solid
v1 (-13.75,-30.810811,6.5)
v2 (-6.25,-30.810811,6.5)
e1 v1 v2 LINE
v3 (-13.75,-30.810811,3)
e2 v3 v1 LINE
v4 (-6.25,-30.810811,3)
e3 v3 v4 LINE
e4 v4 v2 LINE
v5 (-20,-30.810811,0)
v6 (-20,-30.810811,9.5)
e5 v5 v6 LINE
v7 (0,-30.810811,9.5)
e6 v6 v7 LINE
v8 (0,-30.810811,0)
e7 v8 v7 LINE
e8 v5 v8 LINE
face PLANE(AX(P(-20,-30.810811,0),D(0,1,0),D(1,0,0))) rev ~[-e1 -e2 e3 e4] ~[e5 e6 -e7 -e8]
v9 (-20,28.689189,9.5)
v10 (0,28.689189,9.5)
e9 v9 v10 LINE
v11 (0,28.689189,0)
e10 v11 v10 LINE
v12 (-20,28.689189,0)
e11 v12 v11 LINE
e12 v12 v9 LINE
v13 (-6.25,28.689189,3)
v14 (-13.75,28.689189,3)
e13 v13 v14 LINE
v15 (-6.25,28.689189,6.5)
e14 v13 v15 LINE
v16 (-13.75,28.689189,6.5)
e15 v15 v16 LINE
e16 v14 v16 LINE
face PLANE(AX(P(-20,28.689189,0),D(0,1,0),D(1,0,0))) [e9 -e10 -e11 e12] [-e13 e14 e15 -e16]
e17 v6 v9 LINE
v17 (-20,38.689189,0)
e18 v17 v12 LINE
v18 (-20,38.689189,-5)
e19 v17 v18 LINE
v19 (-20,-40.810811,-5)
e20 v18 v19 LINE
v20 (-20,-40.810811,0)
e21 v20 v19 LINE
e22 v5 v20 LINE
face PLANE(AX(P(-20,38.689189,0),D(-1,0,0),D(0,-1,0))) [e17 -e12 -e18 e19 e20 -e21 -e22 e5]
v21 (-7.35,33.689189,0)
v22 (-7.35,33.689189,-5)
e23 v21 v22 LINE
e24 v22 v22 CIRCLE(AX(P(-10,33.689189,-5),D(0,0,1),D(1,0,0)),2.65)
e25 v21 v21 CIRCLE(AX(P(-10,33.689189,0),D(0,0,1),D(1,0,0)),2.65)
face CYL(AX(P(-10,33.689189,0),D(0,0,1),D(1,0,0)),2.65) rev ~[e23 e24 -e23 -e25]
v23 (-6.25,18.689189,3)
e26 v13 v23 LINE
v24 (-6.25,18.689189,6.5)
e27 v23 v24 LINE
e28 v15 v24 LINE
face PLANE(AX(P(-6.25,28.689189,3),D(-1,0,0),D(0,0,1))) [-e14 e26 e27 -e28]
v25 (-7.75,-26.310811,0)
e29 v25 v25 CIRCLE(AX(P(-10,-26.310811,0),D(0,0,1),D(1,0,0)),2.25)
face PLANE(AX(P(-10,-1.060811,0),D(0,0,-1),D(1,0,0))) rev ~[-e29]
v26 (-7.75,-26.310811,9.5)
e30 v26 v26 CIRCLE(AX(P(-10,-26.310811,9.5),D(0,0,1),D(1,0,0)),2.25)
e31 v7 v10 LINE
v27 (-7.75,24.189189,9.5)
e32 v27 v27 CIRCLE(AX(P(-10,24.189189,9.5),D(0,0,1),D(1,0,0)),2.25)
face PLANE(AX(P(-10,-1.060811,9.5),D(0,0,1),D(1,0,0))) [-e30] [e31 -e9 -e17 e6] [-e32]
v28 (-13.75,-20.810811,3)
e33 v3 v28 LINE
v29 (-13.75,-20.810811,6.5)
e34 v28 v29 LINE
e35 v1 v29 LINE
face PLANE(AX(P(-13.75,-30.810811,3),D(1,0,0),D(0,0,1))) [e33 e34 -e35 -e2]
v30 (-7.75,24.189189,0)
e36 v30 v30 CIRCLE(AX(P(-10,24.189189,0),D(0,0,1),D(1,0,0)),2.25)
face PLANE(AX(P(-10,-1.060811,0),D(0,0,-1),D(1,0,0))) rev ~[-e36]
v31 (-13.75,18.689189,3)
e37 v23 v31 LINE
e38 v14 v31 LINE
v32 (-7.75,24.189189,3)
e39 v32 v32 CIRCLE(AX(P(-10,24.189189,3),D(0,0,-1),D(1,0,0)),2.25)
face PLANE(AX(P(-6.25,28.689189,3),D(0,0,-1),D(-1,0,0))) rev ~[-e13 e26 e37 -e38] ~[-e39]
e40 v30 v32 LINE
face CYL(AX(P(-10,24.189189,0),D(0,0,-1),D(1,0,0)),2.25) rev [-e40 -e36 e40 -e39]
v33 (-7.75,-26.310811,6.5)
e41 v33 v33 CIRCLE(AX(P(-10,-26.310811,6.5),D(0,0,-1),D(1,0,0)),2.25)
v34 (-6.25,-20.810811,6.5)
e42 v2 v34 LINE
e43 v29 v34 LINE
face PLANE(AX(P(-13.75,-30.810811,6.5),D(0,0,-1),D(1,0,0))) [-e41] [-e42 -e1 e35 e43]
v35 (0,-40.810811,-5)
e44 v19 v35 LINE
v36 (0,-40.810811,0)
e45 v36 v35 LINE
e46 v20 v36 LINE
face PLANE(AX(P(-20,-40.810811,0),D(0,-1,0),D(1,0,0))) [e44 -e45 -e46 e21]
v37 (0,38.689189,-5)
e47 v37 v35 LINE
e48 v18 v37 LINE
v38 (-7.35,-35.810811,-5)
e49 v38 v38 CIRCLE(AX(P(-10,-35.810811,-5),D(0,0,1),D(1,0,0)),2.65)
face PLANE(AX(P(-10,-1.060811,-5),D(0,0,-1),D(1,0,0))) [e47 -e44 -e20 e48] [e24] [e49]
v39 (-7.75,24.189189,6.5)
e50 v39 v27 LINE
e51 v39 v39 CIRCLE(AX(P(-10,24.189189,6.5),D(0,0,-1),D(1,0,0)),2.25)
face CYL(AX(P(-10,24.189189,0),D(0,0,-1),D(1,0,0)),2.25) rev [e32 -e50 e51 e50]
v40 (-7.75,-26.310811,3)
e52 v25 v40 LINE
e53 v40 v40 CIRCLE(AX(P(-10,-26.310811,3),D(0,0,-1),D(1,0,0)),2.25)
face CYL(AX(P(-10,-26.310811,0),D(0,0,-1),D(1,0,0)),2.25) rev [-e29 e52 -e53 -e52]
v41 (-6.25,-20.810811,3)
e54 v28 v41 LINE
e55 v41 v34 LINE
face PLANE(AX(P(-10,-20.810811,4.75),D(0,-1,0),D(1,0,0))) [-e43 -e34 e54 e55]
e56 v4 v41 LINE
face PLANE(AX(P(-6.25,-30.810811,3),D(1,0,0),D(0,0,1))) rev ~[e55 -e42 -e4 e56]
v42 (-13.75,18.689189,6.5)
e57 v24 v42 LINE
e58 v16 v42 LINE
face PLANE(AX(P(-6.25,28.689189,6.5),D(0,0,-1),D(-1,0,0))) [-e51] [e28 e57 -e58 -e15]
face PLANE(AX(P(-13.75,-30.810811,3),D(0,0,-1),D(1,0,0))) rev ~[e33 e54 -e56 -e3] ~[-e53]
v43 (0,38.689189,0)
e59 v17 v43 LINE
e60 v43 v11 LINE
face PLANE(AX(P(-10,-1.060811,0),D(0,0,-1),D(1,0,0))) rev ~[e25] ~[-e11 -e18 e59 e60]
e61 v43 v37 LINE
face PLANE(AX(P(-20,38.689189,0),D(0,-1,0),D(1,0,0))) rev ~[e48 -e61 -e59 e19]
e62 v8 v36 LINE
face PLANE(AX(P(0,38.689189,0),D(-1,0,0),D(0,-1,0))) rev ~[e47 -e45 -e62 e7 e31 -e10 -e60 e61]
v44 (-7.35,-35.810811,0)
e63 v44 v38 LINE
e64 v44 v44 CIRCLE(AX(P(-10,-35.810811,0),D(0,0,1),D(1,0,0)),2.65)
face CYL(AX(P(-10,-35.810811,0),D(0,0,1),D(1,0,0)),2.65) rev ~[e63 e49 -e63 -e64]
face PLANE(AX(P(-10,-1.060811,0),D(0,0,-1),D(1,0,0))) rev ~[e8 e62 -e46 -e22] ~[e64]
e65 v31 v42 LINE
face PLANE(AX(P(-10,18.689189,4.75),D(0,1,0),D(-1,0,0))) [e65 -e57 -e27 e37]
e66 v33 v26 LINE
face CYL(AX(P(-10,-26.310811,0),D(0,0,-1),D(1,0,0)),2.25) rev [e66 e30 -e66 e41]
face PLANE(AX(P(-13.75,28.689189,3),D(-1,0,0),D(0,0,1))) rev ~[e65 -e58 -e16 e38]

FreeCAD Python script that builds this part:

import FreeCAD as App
import Part
import Sketcher
from FreeCAD import Vector

doc = App.newDocument("Part")
body = doc.addObject("PartDesign::Body", "Body")

sketch1 = body.newObject("Sketcher::SketchObject", "Sketch")
sketch1.AttachmentSupport = (doc.getObject("XY_Plane"), [""])
sketch1.MapMode = "FlatFace"
sketch1.addGeometry([
    Part.LineSegment(Vector(-20, 28.7, 0), Vector(-20, -30.8, 0)),
    Part.LineSegment(Vector(-20, -30.8, 0), Vector(0, -30.8, 0)),
    Part.LineSegment(Vector(0, -30.8, 0), Vector(0, 28.7, 0)),
    Part.LineSegment(Vector(0, 28.7, 0), Vector(-20, 28.7, 0)),
    Part.Circle(Vector(-10, -26.3, 0), Vector(0, 0, 1), 2.2),
    Part.Circle(Vector(-10, 24.2, 0), Vector(0, 0, 1), 2.2),
], False)
sketch1.addConstraint([
    Sketcher.Constraint("Coincident", 0, 2, 1, 1),
    Sketcher.Constraint("Coincident", 1, 2, 2, 1),
    Sketcher.Constraint("Coincident", 2, 2, 3, 1),
    Sketcher.Constraint("Coincident", 3, 2, 0, 1),
    Sketcher.Constraint("Vertical", 0),
    Sketcher.Constraint("Horizontal", 1),
    Sketcher.Constraint("Vertical", 2),
    Sketcher.Constraint("Horizontal", 3),
    Sketcher.Constraint("Equal", 4, 5),
    Sketcher.Constraint("PointOnObject", 1, 2, -2),
    Sketcher.Constraint("Vertical", 4, 3, 5, 3),
    Sketcher.Constraint("Diameter", 4, 4.5),
    Sketcher.Constraint("DistanceX", 1, 1, 1, 2, 20.0),
    Sketcher.Constraint("DistanceY", 0, 2, 0, 1, 59.5),
    Sketcher.Constraint("DistanceX", 4, 3, -1, 1, 10.0),
    Sketcher.Constraint("DistanceY", 0, 2, 5, 3, 55.0),
    Sketcher.Constraint("DistanceY", 4, 3, 2, 2, 55.0),
    Sketcher.Constraint("DistanceY", 4, 3, -1, 1, 26.310811),
])
pad1 = body.newObject("PartDesign::Pad", "Pad")
pad1.Profile = sketch1
pad1.Length = 9.5

sketch2 = body.newObject("Sketcher::SketchObject", "Sketch001")
sketch2.AttachmentSupport = (doc.getObject("XZ_Plane"), [""])
sketch2.MapMode = "FlatFace"
sketch2.AttachmentOffset = App.Placement(Vector(0, 0, -28.689189), App.Rotation())
sketch2.addGeometry([
    Part.LineSegment(Vector(-6.2, 6.5, 0), Vector(-6.2, 3, 0)),
    Part.LineSegment(Vector(-6.2, 3, 0), Vector(-13.8, 3, 0)),
    Part.LineSegment(Vector(-13.8, 3, 0), Vector(-13.8, 6.5, 0)),
    Part.LineSegment(Vector(-13.8, 6.5, 0), Vector(-6.2, 6.5, 0)),
], False)
sketch2.addConstraint([
    Sketcher.Constraint("Coincident", 0, 2, 1, 1),
    Sketcher.Constraint("Coincident", 1, 2, 2, 1),
    Sketcher.Constraint("Coincident", 2, 2, 3, 1),
    Sketcher.Constraint("Coincident", 3, 2, 0, 1),
    Sketcher.Constraint("Vertical", 0),
    Sketcher.Constraint("Horizontal", 1),
    Sketcher.Constraint("Vertical", 2),
    Sketcher.Constraint("Horizontal", 3),
    Sketcher.Constraint("DistanceX", 1, 2, 1, 1, 7.5),
    Sketcher.Constraint("DistanceY", 0, 2, 0, 1, 3.5),
    Sketcher.Constraint("DistanceY", -1, 1, 0, 2, 3.0),
    Sketcher.Constraint("DistanceX", 0, 2, -1, 1, 6.25),
])
pocket1 = body.newObject("PartDesign::Pocket", "Pocket")
pocket1.Profile = sketch2
pocket1.Length = 10
pocket1.Reversed = True

sketch3 = body.newObject("Sketcher::SketchObject", "Sketch002")
sketch3.AttachmentSupport = (doc.getObject("XZ_Plane"), [""])
sketch3.MapMode = "FlatFace"
sketch3.AttachmentOffset = App.Placement(Vector(0, 0, 30.810811), App.Rotation())
sketch3.addGeometry([
    Part.LineSegment(Vector(-13.8, 6.5, 0), Vector(-13.8, 3, 0)),
    Part.LineSegment(Vector(-13.8, 3, 0), Vector(-6.2, 3, 0)),
    Part.LineSegment(Vector(-6.2, 3, 0), Vector(-6.2, 6.5, 0)),
    Part.LineSegment(Vector(-6.2, 6.5, 0), Vector(-13.8, 6.5, 0)),
], False)
sketch3.addConstraint([
    Sketcher.Constraint("Coincident", 0, 2, 1, 1),
    Sketcher.Constraint("Coincident", 1, 2, 2, 1),
    Sketcher.Constraint("Coincident", 2, 2, 3, 1),
    Sketcher.Constraint("Coincident", 3, 2, 0, 1),
    Sketcher.Constraint("Vertical", 0),
    Sketcher.Constraint("Horizontal", 1),
    Sketcher.Constraint("Vertical", 2),
    Sketcher.Constraint("Horizontal", 3),
    Sketcher.Constraint("DistanceX", 1, 1, 1, 2, 7.5),
    Sketcher.Constraint("DistanceY", 0, 2, 0, 1, 3.5),
    Sketcher.Constraint("DistanceY", -1, 1, 0, 2, 3.0),
    Sketcher.Constraint("DistanceX", 0, 2, -1, 1, 13.75),
])
pocket2 = body.newObject("PartDesign::Pocket", "Pocket001")
pocket2.Profile = sketch3
pocket2.Length = 10

sketch4 = body.newObject("Sketcher::SketchObject", "Sketch003")
sketch4.AttachmentSupport = (doc.getObject("XY_Plane"), [""])
sketch4.MapMode = "FlatFace"
sketch4.addGeometry([
    Part.LineSegment(Vector(-20, -41, 0), Vector(-20, 39, 0)),
    Part.LineSegment(Vector(-20, 39, 0), Vector(0, 39, 0)),
    Part.LineSegment(Vector(0, 39, 0), Vector(0, -41, 0)),
    Part.LineSegment(Vector(0, -41, 0), Vector(-20, -41, 0)),
], False)
sketch4.addConstraint([
    Sketcher.Constraint("Coincident", 0, 2, 1, 1),
    Sketcher.Constraint("Coincident", 1, 2, 2, 1),
    Sketcher.Constraint("Coincident", 2, 2, 3, 1),
    Sketcher.Constraint("Coincident", 3, 2, 0, 1),
    Sketcher.Constraint("Vertical", 0),
    Sketcher.Constraint("Horizontal", 1),
    Sketcher.Constraint("Vertical", 2),
    Sketcher.Constraint("Horizontal", 3),
    Sketcher.Constraint("PointOnObject", 1, 2, -2),
    Sketcher.Constraint("DistanceX", 1, 1, 1, 2, 20.0),
    Sketcher.Constraint("DistanceY", 0, 1, 0, 2, 79.5),
    Sketcher.Constraint("DistanceY", -1, 1, 0, 2, 38.689189),
])
pad2 = body.newObject("PartDesign::Pad", "Pad001")
pad2.Profile = sketch4
pad2.Length = 5
pad2.Reversed = True

sketch5 = body.newObject("Sketcher::SketchObject", "Sketch004")
sketch5.AttachmentSupport = (doc.getObject("XY_Plane"), [""])
sketch5.MapMode = "FlatFace"
sketch5.addGeometry([
    Part.Circle(Vector(-10, 33.7, 0), Vector(0, 0, 1), 2.6),
    Part.Circle(Vector(-10, -35.8, 0), Vector(0, 0, 1), 2.6),
], False)
sketch5.addConstraint([
    Sketcher.Constraint("Equal", 0, 1),
    Sketcher.Constraint("Vertical", 0, 3, 1, 3),
    Sketcher.Constraint("Diameter", 0, 5.3),
    Sketcher.Constraint("DistanceX", 0, 3, -1, 1, 10.0),
    Sketcher.Constraint("DistanceY", 1, 3, 0, 3, 69.5),
    Sketcher.Constraint("DistanceY", -1, 1, 0, 3, 33.689189),
])
pocket3 = body.newObject("PartDesign::Pocket", "Pocket002")
pocket3.Profile = sketch5
pocket3.Length = 25

doc.recompute()
